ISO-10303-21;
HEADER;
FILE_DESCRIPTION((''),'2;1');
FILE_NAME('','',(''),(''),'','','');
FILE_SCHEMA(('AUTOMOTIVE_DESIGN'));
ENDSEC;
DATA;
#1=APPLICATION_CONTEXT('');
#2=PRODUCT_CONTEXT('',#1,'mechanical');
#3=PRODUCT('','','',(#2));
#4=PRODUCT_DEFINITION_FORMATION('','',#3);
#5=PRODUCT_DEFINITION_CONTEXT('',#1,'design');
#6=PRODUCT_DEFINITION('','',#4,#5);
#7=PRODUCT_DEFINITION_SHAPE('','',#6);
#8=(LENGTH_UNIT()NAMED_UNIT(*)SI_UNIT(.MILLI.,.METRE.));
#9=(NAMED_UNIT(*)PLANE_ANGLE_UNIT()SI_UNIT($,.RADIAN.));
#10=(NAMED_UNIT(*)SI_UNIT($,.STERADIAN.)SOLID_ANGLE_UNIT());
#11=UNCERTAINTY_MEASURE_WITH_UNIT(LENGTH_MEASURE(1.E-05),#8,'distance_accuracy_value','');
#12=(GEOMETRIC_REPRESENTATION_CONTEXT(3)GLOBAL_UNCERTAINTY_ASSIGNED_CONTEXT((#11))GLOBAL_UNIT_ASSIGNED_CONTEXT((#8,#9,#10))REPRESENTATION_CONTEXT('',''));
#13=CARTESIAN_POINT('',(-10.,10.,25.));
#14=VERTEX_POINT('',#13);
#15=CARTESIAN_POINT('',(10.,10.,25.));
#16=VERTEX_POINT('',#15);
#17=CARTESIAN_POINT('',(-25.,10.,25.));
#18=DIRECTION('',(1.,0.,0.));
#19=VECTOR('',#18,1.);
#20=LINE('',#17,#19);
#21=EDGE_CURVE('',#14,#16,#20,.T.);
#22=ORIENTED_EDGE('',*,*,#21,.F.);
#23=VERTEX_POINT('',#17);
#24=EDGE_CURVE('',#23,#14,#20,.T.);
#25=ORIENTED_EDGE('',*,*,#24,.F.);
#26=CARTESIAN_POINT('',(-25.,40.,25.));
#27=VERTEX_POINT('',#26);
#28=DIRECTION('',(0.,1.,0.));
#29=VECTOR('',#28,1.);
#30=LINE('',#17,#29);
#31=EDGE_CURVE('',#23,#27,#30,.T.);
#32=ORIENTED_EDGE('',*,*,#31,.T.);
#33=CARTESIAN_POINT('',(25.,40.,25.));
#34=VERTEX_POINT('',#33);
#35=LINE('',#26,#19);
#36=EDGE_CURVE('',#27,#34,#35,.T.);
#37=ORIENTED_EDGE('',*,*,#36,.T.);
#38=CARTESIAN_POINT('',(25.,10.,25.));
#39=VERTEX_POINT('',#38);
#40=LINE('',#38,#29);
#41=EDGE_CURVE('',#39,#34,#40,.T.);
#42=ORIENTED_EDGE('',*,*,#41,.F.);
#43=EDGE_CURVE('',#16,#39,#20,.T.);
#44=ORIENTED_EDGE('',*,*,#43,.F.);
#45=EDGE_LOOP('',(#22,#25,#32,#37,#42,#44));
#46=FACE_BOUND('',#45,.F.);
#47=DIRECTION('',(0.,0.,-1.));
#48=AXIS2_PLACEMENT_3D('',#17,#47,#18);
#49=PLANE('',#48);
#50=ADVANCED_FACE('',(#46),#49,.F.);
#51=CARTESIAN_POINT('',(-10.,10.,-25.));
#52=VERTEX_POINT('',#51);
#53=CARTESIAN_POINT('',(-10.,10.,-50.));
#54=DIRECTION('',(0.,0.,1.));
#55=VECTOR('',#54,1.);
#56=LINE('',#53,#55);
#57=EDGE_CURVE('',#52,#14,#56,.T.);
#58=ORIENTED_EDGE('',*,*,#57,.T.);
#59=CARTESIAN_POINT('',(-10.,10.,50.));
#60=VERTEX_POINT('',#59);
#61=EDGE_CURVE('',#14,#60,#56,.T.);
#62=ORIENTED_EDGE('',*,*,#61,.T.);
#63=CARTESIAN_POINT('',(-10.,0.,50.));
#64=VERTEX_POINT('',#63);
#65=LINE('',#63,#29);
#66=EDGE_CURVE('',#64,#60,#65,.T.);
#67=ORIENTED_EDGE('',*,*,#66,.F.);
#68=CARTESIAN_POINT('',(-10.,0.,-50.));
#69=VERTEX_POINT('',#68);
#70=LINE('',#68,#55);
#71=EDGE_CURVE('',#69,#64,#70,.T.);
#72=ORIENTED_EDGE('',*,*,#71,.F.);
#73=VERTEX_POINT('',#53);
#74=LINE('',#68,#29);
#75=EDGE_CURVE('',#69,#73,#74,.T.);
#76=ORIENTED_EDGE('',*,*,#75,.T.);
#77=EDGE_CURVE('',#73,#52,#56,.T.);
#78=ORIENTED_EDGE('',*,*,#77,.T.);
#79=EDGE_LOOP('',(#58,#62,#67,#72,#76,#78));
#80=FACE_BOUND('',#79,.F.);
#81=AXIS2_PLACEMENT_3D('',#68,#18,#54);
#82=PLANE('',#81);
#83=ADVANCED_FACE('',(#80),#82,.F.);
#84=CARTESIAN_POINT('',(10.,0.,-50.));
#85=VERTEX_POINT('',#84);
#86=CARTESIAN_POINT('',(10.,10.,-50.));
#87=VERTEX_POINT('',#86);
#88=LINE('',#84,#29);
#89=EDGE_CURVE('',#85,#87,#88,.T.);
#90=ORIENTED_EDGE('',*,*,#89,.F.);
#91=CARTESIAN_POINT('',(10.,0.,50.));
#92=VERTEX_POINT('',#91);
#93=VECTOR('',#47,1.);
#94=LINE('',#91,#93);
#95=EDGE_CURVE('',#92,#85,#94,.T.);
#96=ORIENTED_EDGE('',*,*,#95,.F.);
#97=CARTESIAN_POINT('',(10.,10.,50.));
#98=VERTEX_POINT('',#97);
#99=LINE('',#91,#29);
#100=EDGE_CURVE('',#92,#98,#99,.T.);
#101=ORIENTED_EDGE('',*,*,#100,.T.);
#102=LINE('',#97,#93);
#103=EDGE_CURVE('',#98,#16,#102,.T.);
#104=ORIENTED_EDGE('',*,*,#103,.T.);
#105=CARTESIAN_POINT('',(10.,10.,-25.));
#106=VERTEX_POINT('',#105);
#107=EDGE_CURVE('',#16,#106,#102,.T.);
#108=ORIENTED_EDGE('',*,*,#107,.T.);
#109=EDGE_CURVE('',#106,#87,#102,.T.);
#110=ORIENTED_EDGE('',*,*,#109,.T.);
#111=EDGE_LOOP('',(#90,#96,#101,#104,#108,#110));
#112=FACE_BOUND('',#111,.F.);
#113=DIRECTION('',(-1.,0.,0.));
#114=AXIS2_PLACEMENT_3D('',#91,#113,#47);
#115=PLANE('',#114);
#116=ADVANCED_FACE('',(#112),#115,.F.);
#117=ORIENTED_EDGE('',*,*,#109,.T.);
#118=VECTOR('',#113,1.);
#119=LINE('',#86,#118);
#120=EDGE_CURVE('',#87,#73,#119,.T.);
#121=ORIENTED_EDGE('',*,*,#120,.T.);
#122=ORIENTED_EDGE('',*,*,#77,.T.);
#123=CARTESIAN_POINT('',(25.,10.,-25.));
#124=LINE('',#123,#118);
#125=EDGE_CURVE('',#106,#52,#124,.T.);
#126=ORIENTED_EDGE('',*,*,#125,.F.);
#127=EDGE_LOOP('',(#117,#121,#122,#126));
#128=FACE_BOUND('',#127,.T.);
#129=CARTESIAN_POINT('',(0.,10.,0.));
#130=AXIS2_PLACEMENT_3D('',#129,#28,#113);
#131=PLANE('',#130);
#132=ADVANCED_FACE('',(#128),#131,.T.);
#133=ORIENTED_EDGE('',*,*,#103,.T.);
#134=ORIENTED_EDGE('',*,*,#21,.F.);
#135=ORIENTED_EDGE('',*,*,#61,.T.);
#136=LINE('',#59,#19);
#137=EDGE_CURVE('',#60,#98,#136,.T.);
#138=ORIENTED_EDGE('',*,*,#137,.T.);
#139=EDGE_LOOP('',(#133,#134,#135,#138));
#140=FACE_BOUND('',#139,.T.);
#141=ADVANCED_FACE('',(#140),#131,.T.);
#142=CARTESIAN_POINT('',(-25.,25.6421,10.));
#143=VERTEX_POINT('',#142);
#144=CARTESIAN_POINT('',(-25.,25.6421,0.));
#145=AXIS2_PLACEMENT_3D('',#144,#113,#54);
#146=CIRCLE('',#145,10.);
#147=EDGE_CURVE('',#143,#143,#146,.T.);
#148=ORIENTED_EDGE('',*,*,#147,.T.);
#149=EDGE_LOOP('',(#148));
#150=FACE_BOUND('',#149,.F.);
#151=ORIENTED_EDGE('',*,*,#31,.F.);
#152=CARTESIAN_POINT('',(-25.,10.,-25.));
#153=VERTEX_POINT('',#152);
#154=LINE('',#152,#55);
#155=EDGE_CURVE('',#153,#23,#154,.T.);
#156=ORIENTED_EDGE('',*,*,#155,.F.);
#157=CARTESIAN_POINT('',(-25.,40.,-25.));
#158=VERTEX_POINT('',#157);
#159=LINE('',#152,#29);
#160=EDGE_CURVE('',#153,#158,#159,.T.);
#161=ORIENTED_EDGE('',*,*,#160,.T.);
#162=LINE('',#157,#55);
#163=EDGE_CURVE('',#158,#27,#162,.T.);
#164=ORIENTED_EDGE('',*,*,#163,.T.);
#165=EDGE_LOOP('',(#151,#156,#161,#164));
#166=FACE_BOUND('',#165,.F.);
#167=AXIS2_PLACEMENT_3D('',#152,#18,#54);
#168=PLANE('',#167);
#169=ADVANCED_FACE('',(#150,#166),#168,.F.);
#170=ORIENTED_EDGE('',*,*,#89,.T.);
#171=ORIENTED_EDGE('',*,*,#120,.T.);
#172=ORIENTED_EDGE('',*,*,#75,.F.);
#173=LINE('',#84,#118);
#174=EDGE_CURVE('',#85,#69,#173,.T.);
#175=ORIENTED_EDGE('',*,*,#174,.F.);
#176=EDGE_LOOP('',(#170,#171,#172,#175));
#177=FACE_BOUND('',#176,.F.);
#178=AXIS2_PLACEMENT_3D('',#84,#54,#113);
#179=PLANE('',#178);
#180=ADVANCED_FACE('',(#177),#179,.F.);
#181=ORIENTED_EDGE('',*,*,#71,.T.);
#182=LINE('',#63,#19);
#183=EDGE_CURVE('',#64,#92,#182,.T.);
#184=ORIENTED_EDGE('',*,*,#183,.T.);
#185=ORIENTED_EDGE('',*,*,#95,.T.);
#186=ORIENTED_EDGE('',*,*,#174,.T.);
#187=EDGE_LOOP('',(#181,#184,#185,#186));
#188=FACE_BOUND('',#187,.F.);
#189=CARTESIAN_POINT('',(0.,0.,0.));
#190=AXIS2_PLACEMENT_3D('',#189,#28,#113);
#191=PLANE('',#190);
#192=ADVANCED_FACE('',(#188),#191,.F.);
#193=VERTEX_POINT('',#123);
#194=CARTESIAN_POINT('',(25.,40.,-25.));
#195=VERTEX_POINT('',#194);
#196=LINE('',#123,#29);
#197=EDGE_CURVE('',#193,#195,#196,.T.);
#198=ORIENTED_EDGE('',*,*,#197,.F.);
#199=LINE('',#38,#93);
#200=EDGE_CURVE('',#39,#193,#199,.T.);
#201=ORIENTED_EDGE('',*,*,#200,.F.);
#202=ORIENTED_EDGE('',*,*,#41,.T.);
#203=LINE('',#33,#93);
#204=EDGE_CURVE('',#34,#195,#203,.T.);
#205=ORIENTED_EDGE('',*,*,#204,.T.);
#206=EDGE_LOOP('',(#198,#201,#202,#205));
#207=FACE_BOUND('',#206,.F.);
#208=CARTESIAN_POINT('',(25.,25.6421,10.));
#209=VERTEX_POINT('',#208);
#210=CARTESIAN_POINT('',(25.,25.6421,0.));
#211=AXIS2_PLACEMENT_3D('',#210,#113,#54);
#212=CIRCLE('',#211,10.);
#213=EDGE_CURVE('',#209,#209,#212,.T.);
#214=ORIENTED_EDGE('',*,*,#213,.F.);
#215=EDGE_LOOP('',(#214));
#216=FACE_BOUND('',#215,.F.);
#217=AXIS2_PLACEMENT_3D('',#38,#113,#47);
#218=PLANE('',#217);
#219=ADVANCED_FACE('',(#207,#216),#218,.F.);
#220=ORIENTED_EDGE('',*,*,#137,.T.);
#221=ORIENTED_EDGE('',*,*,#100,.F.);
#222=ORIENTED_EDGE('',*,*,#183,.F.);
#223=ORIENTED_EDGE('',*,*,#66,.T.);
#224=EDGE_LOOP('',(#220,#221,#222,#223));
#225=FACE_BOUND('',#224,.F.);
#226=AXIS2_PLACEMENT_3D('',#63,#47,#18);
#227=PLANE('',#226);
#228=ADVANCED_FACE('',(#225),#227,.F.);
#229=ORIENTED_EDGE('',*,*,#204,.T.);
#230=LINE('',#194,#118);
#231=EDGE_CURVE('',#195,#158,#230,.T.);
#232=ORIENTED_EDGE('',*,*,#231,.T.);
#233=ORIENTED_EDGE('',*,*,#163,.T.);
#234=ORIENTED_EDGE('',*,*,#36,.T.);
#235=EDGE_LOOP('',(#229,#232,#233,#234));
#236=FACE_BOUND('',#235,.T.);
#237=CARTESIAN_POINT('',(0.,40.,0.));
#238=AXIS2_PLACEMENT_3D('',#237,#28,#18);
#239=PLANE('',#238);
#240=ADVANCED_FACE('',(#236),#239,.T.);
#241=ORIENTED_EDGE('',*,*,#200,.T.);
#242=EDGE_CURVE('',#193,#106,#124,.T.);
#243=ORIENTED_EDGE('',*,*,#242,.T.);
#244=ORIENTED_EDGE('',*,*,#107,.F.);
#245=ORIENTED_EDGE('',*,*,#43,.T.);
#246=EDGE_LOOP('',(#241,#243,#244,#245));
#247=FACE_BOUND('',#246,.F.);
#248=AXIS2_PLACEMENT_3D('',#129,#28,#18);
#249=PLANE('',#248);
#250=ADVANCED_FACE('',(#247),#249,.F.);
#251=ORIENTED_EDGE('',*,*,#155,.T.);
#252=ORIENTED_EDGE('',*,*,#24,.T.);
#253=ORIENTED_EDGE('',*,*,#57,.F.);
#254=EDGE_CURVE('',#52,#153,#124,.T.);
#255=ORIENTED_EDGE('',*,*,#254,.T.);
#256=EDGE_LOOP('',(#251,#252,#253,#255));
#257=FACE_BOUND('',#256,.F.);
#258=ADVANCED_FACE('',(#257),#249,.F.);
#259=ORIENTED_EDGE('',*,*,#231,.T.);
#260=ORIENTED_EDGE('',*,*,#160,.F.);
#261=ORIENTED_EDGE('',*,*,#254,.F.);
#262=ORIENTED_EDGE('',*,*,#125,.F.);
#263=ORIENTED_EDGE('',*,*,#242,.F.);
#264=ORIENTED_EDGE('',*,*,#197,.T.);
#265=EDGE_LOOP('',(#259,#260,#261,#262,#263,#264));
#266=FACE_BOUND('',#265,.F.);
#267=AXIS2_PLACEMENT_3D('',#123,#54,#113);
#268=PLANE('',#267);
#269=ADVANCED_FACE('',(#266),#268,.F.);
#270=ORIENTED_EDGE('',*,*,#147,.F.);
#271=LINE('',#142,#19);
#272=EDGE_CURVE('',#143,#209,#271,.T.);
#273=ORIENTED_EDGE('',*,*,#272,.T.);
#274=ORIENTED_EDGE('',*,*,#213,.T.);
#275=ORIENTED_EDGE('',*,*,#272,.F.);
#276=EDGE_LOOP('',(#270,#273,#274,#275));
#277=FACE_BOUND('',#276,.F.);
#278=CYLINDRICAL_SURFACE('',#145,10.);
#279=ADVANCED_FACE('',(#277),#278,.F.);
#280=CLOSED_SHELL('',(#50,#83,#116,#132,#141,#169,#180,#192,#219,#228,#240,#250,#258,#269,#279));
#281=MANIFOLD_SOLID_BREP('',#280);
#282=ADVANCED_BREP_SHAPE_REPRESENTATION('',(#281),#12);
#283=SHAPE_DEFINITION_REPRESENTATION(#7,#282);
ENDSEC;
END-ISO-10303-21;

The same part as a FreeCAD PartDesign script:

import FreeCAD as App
import Part
import Sketcher
from FreeCAD import Vector


def add_polygon(sketch, points):
    """Adds a closed chain of lines whose ends are joined by coincident constraints."""
    first, n = sketch.GeometryCount, len(points)
    for a, b in zip(points, points[1:] + points[:1]):
        sketch.addGeometry(Part.LineSegment(App.Vector(*a, 0), App.Vector(*b, 0)), False)
    for i in range(n):
        sketch.addConstraint(Sketcher.Constraint("Coincident", first + i, 2, first + (i + 1) % n, 1))

doc = App.newDocument("Part")
body = doc.addObject("PartDesign::Body", "Body")

# Sketch on XZ plane
sketch1 = body.newObject("Sketcher::SketchObject", "Sketch")
sketch1.AttachmentSupport = (doc.getObject("XZ_Plane"), [""])
sketch1.MapMode = "FlatFace"
add_polygon(sketch1, [(10, 50), (10, -50), (-10, -50), (-10, 50)])  # lines 0-3
sketch1.addConstraint([
    Sketcher.Constraint("Vertical", 0),
    Sketcher.Constraint("Horizontal", 1),
    Sketcher.Constraint("Vertical", 2),
    Sketcher.Constraint("Horizontal", 3),
    Sketcher.Constraint("Symmetric", 0, 2, 2, 2, -1, 1),
    Sketcher.Constraint("DistanceX", 1, 2, 1, 1, 20.0),
    Sketcher.Constraint("DistanceY", 0, 2, 0, 1, 100.0),
])
pad1 = body.newObject("PartDesign::Pad", "Pad")
pad1.Profile = sketch1
pad1.Length = 10
pad1.Reversed = True

# Sketch on XZ plane
sketch2 = body.newObject("Sketcher::SketchObject", "Sketch001")
sketch2.AttachmentSupport = (doc.getObject("XZ_Plane"), [""])
sketch2.MapMode = "FlatFace"
sketch2.AttachmentOffset = App.Placement(Vector(0, 0, -10), App.Rotation())
add_polygon(sketch2, [(25, 25), (25, -25), (-25, -25), (-25, 25)])  # lines 0-3
sketch2.addConstraint([
    Sketcher.Constraint("Vertical", 0),
    Sketcher.Constraint("Horizontal", 1),
    Sketcher.Constraint("Vertical", 2),
    Sketcher.Constraint("Horizontal", 3),
    Sketcher.Constraint("Symmetric", 0, 2, 2, 2, -1, 1),
    Sketcher.Constraint("Equal", 3, 0),
    Sketcher.Constraint("DistanceX", 1, 2, 1, 1, 50.0),
])
pad2 = body.newObject("PartDesign::Pad", "Pad001")
pad2.Profile = sketch2
pad2.Length = 30
pad2.Reversed = True

# Sketch on YZ plane
sketch3 = body.newObject("Sketcher::SketchObject", "Sketch002")
sketch3.AttachmentSupport = (doc.getObject("YZ_Plane"), [""])
sketch3.MapMode = "FlatFace"
sketch3.AttachmentOffset = App.Placement(Vector(0, 0, -25), App.Rotation())
sketch3.addGeometry(Part.Circle(Vector(26, 0, 0), Vector(0, 0, 1), 10), False)
sketch3.addConstraint([
    Sketcher.Constraint("PointOnObject", 0, 3, -1),
    Sketcher.Constraint("Diameter", 0, 20.0),
    Sketcher.Constraint("DistanceX", -1, 1, 0, 3, 25.642),
])
pocket1 = body.newObject("PartDesign::Pocket", "Pocket")
pocket1.Profile = sketch3
pocket1.Type = "ThroughAll"
pocket1.Reversed = True

doc.recompute()
